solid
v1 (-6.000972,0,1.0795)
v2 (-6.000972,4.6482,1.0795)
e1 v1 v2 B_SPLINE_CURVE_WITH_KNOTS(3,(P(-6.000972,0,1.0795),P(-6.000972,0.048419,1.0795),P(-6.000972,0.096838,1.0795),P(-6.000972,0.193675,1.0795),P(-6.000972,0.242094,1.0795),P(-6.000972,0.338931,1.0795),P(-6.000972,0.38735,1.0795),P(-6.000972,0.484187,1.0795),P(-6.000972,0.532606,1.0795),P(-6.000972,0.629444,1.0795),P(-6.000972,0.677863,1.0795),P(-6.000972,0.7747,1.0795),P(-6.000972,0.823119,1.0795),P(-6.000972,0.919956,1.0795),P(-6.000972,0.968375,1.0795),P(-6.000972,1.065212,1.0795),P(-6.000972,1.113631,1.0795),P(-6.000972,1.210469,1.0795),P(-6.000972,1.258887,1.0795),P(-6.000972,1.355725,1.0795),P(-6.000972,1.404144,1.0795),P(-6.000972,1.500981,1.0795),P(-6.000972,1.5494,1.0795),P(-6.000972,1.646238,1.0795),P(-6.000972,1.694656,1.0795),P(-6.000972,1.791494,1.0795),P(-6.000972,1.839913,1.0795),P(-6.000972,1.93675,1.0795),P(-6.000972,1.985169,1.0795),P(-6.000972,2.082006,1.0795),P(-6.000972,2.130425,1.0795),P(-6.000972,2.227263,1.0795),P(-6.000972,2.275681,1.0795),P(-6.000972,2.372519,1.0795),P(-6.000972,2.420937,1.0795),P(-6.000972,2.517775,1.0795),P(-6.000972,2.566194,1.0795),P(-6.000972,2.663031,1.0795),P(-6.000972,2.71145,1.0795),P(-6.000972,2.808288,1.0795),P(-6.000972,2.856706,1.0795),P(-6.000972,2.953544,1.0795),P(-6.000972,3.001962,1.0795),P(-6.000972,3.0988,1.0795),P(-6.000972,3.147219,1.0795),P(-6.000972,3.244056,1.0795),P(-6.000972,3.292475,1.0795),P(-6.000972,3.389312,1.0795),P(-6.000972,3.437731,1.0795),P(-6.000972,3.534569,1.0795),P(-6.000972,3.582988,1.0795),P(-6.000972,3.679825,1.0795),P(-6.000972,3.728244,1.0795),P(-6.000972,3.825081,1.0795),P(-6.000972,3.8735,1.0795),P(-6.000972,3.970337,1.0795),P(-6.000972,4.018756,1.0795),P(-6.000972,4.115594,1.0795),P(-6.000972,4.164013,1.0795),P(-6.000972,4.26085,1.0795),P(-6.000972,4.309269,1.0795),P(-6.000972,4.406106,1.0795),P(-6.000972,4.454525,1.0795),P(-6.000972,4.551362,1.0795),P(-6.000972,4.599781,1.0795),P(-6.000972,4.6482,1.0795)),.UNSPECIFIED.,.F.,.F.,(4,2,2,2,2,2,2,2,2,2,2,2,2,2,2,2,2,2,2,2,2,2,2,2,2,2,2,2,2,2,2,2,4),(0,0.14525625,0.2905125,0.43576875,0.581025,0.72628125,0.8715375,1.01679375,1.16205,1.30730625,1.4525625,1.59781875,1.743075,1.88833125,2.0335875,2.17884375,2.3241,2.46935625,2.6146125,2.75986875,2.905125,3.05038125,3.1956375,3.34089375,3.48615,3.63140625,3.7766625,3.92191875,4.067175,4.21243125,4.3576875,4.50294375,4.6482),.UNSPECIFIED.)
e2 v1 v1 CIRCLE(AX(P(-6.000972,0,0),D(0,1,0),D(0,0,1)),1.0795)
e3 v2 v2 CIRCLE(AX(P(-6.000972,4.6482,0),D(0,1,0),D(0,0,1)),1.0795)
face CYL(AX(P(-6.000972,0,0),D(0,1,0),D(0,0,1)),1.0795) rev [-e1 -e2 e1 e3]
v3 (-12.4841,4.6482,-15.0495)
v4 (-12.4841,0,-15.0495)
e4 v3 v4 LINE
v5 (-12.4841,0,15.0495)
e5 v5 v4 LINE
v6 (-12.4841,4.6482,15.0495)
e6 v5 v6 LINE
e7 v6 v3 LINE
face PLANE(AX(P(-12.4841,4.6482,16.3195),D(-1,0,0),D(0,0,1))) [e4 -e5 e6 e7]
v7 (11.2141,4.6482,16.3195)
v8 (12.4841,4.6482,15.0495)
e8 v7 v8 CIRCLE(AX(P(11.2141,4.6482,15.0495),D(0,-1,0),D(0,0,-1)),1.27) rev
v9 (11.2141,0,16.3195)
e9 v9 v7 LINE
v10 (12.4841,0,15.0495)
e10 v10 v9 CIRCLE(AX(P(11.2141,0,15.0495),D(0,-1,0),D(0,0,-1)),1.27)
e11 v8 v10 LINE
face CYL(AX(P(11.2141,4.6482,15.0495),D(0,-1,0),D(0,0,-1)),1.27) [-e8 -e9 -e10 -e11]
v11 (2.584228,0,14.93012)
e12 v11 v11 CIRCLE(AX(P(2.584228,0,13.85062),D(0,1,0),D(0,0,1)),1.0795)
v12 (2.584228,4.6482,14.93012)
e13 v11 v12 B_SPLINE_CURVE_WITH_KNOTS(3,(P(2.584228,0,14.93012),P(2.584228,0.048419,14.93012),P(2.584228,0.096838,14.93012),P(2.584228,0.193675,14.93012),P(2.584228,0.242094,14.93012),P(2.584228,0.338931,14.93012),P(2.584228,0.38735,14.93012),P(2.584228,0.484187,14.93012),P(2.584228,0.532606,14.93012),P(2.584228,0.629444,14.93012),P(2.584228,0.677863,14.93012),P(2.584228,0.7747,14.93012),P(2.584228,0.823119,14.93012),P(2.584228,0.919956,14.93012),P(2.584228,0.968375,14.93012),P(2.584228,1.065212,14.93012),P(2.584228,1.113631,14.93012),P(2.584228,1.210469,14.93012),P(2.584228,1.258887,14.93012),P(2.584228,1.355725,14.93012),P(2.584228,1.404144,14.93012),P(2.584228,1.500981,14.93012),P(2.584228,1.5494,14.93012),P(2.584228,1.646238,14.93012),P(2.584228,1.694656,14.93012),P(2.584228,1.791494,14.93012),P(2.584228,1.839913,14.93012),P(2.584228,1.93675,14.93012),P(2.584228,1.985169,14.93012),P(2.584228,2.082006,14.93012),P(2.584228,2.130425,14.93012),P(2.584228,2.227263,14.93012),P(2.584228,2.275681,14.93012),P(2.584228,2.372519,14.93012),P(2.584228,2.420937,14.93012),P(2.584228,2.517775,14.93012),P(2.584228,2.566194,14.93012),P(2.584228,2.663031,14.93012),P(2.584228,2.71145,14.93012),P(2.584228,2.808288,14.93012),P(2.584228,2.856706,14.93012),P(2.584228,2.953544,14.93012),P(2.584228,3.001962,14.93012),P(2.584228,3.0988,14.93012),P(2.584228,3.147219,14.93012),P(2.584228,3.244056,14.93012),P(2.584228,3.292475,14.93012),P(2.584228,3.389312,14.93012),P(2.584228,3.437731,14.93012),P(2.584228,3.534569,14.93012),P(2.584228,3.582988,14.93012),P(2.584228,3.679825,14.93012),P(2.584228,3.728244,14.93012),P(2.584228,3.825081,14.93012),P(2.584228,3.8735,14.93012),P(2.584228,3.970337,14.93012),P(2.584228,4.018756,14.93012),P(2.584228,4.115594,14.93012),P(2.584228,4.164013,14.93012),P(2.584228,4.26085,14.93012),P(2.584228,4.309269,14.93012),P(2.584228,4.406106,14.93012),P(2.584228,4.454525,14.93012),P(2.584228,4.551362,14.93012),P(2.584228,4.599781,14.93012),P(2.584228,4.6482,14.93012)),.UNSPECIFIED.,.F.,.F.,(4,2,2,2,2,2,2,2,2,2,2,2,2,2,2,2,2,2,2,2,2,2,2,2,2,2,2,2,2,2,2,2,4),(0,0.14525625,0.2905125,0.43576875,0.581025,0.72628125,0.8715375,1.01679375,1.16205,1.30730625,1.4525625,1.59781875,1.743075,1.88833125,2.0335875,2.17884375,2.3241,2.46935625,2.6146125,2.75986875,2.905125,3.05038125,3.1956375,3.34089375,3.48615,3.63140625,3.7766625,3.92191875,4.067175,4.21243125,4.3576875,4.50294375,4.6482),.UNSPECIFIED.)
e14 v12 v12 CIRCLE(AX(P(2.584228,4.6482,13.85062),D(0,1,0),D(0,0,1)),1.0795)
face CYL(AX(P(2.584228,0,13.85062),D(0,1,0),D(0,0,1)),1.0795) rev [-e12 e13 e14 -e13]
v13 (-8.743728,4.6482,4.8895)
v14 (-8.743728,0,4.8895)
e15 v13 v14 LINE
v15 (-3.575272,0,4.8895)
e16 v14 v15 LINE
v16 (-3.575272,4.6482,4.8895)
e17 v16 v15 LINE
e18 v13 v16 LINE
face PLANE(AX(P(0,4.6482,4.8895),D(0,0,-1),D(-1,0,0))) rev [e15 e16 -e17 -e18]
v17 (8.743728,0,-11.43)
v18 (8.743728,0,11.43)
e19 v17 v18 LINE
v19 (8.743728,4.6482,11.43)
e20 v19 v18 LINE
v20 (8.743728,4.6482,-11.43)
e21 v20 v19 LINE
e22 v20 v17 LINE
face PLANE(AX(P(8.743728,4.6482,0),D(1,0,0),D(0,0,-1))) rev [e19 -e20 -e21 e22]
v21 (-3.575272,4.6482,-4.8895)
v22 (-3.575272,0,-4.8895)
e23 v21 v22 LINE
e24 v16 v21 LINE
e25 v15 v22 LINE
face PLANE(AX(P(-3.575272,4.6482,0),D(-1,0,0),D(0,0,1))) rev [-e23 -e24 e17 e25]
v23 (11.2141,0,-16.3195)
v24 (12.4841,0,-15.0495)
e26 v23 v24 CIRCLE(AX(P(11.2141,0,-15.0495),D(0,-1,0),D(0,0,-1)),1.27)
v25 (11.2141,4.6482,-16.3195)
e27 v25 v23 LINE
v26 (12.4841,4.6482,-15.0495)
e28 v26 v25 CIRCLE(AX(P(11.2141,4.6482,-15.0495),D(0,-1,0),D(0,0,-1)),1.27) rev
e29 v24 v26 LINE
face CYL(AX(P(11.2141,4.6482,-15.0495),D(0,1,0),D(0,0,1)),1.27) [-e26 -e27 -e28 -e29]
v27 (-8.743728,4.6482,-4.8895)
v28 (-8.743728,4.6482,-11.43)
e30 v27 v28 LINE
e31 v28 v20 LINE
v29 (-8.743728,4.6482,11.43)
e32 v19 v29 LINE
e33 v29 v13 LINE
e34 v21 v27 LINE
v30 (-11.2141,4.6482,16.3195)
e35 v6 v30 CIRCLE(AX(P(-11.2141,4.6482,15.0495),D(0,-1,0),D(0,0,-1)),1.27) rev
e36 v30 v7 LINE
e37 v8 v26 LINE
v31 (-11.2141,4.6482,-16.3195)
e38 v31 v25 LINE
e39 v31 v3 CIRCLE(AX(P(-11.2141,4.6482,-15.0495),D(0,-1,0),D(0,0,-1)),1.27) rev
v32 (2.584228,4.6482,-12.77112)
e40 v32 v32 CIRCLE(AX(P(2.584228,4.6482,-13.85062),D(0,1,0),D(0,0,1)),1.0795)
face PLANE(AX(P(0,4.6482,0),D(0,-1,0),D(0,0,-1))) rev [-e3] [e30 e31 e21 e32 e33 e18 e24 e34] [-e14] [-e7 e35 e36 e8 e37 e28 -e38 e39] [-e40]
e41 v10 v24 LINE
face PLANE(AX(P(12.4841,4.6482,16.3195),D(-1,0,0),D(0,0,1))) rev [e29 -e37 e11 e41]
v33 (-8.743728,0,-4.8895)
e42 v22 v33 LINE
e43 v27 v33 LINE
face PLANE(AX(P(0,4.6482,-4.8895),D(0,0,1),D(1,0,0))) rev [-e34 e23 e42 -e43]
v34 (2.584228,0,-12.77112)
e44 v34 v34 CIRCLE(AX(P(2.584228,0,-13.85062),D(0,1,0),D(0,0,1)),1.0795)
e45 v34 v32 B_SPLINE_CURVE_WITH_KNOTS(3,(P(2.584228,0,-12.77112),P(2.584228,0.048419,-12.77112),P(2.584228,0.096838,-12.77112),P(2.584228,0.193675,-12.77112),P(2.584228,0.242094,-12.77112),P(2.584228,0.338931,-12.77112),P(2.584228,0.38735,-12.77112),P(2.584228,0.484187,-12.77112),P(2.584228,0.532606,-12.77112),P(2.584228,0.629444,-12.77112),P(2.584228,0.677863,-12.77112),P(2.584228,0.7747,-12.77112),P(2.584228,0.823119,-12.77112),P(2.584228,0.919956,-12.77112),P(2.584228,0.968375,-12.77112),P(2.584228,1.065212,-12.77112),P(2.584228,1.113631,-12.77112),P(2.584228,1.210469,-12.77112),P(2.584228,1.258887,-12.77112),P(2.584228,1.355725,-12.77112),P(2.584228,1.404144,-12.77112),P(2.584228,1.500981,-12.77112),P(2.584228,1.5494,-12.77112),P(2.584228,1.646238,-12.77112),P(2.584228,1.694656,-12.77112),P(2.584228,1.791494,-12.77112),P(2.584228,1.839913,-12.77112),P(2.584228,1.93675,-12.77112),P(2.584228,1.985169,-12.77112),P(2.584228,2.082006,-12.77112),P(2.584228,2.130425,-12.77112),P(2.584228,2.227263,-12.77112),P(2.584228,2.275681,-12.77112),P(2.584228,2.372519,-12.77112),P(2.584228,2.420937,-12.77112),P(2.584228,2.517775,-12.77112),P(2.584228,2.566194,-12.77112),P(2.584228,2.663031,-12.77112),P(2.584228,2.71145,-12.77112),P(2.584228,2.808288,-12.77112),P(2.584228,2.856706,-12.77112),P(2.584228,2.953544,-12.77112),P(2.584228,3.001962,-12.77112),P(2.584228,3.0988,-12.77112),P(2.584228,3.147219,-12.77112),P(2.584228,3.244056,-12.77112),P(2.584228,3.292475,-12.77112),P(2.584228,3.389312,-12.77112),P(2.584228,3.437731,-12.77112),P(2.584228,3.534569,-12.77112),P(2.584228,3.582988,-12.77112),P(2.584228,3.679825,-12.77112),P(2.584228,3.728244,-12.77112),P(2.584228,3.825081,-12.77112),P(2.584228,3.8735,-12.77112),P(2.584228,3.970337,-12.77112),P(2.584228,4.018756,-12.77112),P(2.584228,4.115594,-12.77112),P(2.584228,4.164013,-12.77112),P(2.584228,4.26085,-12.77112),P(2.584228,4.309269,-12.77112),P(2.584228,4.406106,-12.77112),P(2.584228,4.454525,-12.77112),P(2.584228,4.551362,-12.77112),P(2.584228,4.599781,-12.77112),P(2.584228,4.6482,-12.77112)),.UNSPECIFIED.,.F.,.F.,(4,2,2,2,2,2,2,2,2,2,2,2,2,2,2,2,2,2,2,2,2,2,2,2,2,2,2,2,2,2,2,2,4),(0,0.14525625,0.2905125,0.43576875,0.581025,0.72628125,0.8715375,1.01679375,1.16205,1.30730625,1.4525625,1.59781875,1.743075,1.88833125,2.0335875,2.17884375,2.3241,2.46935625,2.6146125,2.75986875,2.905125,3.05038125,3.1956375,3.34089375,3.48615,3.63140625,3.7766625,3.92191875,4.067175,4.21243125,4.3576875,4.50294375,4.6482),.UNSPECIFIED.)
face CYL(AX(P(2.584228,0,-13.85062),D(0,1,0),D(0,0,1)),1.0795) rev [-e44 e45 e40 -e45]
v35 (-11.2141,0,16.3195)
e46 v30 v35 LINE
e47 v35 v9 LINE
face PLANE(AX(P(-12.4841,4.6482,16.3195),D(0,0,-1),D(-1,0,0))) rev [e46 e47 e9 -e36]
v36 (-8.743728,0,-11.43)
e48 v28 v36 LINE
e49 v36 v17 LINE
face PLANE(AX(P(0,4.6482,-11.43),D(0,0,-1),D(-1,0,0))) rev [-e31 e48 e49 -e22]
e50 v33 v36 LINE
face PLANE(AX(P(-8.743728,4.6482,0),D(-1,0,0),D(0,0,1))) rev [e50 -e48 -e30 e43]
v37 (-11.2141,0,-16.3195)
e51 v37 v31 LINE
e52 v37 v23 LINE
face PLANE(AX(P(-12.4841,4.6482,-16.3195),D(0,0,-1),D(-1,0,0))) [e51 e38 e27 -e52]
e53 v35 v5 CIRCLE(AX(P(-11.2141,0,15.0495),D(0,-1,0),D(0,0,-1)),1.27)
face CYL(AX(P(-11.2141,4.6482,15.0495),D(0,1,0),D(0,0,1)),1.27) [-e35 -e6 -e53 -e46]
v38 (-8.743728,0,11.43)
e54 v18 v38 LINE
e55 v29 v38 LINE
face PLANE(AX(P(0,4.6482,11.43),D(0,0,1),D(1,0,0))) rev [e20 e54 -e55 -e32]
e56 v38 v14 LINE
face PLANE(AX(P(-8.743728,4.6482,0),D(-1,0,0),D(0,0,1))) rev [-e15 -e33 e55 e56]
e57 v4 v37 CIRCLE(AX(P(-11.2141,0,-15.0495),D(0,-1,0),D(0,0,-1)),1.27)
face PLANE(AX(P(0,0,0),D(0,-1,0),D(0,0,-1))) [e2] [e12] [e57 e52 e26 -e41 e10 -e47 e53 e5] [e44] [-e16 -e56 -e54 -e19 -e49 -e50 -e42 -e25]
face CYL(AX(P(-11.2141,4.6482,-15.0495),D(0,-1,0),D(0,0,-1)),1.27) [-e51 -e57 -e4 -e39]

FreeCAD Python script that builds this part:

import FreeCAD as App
import Part
import Sketcher

V = App.Vector
Q = App.Units.Quantity


def edges_at(feature, points):
    """Names of the edges that pass closest to the given points."""
    edges = feature.Shape.Edges
    near = lambda p: min(range(len(edges)), key=lambda i: edges[i].distToShape(Part.Vertex(*p))[0])
    return sorted({f"Edge{near(p) + 1}" for p in points})


def add_polygon(sketch, points):
    """Adds a closed chain of lines whose ends are joined by coincident constraints."""
    first, n = sketch.GeometryCount, len(points)
    for a, b in zip(points, points[1:] + points[:1]):
        sketch.addGeometry(Part.LineSegment(App.Vector(*a, 0), App.Vector(*b, 0)), False)
    for i in range(n):
        sketch.addConstraint(Sketcher.Constraint("Coincident", first + i, 2, first + (i + 1) % n, 1))

doc = App.newDocument("Part")
params = doc.addObject("Spreadsheet::Sheet", "Params")
for row, (alias, value) in enumerate([
    ("sketch1_height", "0.9 in"),
    ("sketch1_width", "0.983 in"),
    ("sketch1_height2", "1.285 in"),
    ("sketch1_height3", "0.385 in"),
    ("pad1_length", "0.183 in"),
    ("sketch2_diameter", "0.085 in"),
    ("pocket1_length", "0.183 in"),
    ("fillet_radius", "0.05 in"),
], start=1):
    params.set(f"A{row}", alias)
    params.set(f"B{row}", "=" + value)
    params.setAlias(f"B{row}", alias)

body = doc.addObject("PartDesign::Body", "Body")

# Sketch on XZ plane
sketch1 = body.newObject("Sketcher::SketchObject", "Sketch")
sketch1.AttachmentSupport = (doc.getObject("XZ_Plane"), [""])
sketch1.MapMode = "FlatFace"
add_polygon(sketch1, [(-12, -16), (-12, 16), (12, 16), (12, -16)])  # lines 0-3
add_polygon(sketch1, [(-9, -11), (9, -11), (9, 11), (-9, 11), (-9, 5), (-4, 5), (-4, -5), (-9, -5)])  # lines 4-11
sketch1.addConstraint([
    Sketcher.Constraint("Vertical", 0),
    Sketcher.Constraint("Horizontal", 1),
    Sketcher.Constraint("Vertical", 2),
    Sketcher.Constraint("Horizontal", 3),
    Sketcher.Constraint("Horizontal", 4),
    Sketcher.Constraint("Vertical", 5),
    Sketcher.Constraint("Horizontal", 6),
    Sketcher.Constraint("Vertical", 7),
    Sketcher.Constraint("Horizontal", 8),
    Sketcher.Constraint("Vertical", 9),
    Sketcher.Constraint("Horizontal", 10),
    Sketcher.Constraint("Vertical", 11),
    Sketcher.Constraint("Symmetric", 0, 2, 2, 2, -1, 1),
    Sketcher.Constraint("Symmetric", 4, 2, 6, 2, -1, 1),
    Sketcher.Constraint("Symmetric", 7, 2, 10, 2, -1),
    Sketcher.Constraint("DistanceY", 5, 1, 5, 2, Q("0.9 in")),
    Sketcher.Constraint("DistanceX", 1, 1, 1, 2, Q("0.983 in")),
    Sketcher.Constraint("DistanceY", 0, 1, 0, 2, Q("1.285 in")),
    Sketcher.Constraint("DistanceY", 9, 2, 9, 1, Q("0.385 in")),
    Sketcher.Constraint("DistanceX", 8, 2, 5, 2, Q("0.485 in")),
    Sketcher.Constraint("DistanceX", 4, 1, 4, 2, 17.487455),
])
sketch1.setExpression("Constraints[27]", "Params.sketch1_height")
sketch1.setExpression("Constraints[28]", "Params.sketch1_width")
sketch1.setExpression("Constraints[29]", "Params.sketch1_height2")
sketch1.setExpression("Constraints[30]", "Params.sketch1_height3")
pad1 = body.newObject("PartDesign::Pad", "Pad")
pad1.Profile = sketch1
pad1.setExpression("Length", "Params.pad1_length")
pad1.Reversed = True

# Sketch on XZ plane
sketch2 = body.newObject("Sketcher::SketchObject", "Sketch001")
sketch2.AttachmentSupport = (doc.getObject("XZ_Plane"), [""])
sketch2.MapMode = "FlatFace"
sketch2.AttachmentOffset = App.Placement(V(0, 0, -0.183 * 25.4), App.Rotation())
sketch2.addGeometry([
    Part.Circle(V(2.6, -13.9, 0), V(0, 0, 1), 1.1),
    Part.Circle(V(2.6, 13.9, 0), V(0, 0, 1), 1.1),
    Part.Circle(V(-6, 0, 0), V(0, 0, 1), 1.1),
], False)
sketch2.addConstraint([
    Sketcher.Constraint("Equal", 0, 1),
    Sketcher.Constraint("Equal", 1, 2),
    Sketcher.Constraint("Symmetric", 0, 3, 1, 3, -1),
    Sketcher.Constraint("PointOnObject", 2, 3, -1),
    Sketcher.Constraint("Diameter", 0, Q("0.085 in")),
    Sketcher.Constraint("DistanceX", 2, 3, 0, 3, Q("0.338 in")),
    Sketcher.Constraint("DistanceY", 0, 3, -1, 1, Q("0.5453 in")),
    Sketcher.Constraint("DistanceX", -1, 1, 0, 3, 2.584228),
])
sketch2.setExpression("Constraints[4]", "Params.sketch2_diameter")
pocket1 = body.newObject("PartDesign::Pocket", "Pocket")
pocket1.Profile = sketch2
pocket1.setExpression("Length", "Params.pocket1_length")
pocket1.Reversed = True
doc.recompute()

fillet = body.newObject("PartDesign::Fillet", "Fillet")
fillet.Base = (pocket1, edges_at(pocket1, [
    (-12.484, 2.324, 16.32),
    (12.484, 2.324, 16.32),
    (12.484, 2.324, -16.32),
    (-12.484, 2.324, -16.32),
]))
fillet.setExpression("Radius", "Params.fillet_radius")

doc.recompute()
